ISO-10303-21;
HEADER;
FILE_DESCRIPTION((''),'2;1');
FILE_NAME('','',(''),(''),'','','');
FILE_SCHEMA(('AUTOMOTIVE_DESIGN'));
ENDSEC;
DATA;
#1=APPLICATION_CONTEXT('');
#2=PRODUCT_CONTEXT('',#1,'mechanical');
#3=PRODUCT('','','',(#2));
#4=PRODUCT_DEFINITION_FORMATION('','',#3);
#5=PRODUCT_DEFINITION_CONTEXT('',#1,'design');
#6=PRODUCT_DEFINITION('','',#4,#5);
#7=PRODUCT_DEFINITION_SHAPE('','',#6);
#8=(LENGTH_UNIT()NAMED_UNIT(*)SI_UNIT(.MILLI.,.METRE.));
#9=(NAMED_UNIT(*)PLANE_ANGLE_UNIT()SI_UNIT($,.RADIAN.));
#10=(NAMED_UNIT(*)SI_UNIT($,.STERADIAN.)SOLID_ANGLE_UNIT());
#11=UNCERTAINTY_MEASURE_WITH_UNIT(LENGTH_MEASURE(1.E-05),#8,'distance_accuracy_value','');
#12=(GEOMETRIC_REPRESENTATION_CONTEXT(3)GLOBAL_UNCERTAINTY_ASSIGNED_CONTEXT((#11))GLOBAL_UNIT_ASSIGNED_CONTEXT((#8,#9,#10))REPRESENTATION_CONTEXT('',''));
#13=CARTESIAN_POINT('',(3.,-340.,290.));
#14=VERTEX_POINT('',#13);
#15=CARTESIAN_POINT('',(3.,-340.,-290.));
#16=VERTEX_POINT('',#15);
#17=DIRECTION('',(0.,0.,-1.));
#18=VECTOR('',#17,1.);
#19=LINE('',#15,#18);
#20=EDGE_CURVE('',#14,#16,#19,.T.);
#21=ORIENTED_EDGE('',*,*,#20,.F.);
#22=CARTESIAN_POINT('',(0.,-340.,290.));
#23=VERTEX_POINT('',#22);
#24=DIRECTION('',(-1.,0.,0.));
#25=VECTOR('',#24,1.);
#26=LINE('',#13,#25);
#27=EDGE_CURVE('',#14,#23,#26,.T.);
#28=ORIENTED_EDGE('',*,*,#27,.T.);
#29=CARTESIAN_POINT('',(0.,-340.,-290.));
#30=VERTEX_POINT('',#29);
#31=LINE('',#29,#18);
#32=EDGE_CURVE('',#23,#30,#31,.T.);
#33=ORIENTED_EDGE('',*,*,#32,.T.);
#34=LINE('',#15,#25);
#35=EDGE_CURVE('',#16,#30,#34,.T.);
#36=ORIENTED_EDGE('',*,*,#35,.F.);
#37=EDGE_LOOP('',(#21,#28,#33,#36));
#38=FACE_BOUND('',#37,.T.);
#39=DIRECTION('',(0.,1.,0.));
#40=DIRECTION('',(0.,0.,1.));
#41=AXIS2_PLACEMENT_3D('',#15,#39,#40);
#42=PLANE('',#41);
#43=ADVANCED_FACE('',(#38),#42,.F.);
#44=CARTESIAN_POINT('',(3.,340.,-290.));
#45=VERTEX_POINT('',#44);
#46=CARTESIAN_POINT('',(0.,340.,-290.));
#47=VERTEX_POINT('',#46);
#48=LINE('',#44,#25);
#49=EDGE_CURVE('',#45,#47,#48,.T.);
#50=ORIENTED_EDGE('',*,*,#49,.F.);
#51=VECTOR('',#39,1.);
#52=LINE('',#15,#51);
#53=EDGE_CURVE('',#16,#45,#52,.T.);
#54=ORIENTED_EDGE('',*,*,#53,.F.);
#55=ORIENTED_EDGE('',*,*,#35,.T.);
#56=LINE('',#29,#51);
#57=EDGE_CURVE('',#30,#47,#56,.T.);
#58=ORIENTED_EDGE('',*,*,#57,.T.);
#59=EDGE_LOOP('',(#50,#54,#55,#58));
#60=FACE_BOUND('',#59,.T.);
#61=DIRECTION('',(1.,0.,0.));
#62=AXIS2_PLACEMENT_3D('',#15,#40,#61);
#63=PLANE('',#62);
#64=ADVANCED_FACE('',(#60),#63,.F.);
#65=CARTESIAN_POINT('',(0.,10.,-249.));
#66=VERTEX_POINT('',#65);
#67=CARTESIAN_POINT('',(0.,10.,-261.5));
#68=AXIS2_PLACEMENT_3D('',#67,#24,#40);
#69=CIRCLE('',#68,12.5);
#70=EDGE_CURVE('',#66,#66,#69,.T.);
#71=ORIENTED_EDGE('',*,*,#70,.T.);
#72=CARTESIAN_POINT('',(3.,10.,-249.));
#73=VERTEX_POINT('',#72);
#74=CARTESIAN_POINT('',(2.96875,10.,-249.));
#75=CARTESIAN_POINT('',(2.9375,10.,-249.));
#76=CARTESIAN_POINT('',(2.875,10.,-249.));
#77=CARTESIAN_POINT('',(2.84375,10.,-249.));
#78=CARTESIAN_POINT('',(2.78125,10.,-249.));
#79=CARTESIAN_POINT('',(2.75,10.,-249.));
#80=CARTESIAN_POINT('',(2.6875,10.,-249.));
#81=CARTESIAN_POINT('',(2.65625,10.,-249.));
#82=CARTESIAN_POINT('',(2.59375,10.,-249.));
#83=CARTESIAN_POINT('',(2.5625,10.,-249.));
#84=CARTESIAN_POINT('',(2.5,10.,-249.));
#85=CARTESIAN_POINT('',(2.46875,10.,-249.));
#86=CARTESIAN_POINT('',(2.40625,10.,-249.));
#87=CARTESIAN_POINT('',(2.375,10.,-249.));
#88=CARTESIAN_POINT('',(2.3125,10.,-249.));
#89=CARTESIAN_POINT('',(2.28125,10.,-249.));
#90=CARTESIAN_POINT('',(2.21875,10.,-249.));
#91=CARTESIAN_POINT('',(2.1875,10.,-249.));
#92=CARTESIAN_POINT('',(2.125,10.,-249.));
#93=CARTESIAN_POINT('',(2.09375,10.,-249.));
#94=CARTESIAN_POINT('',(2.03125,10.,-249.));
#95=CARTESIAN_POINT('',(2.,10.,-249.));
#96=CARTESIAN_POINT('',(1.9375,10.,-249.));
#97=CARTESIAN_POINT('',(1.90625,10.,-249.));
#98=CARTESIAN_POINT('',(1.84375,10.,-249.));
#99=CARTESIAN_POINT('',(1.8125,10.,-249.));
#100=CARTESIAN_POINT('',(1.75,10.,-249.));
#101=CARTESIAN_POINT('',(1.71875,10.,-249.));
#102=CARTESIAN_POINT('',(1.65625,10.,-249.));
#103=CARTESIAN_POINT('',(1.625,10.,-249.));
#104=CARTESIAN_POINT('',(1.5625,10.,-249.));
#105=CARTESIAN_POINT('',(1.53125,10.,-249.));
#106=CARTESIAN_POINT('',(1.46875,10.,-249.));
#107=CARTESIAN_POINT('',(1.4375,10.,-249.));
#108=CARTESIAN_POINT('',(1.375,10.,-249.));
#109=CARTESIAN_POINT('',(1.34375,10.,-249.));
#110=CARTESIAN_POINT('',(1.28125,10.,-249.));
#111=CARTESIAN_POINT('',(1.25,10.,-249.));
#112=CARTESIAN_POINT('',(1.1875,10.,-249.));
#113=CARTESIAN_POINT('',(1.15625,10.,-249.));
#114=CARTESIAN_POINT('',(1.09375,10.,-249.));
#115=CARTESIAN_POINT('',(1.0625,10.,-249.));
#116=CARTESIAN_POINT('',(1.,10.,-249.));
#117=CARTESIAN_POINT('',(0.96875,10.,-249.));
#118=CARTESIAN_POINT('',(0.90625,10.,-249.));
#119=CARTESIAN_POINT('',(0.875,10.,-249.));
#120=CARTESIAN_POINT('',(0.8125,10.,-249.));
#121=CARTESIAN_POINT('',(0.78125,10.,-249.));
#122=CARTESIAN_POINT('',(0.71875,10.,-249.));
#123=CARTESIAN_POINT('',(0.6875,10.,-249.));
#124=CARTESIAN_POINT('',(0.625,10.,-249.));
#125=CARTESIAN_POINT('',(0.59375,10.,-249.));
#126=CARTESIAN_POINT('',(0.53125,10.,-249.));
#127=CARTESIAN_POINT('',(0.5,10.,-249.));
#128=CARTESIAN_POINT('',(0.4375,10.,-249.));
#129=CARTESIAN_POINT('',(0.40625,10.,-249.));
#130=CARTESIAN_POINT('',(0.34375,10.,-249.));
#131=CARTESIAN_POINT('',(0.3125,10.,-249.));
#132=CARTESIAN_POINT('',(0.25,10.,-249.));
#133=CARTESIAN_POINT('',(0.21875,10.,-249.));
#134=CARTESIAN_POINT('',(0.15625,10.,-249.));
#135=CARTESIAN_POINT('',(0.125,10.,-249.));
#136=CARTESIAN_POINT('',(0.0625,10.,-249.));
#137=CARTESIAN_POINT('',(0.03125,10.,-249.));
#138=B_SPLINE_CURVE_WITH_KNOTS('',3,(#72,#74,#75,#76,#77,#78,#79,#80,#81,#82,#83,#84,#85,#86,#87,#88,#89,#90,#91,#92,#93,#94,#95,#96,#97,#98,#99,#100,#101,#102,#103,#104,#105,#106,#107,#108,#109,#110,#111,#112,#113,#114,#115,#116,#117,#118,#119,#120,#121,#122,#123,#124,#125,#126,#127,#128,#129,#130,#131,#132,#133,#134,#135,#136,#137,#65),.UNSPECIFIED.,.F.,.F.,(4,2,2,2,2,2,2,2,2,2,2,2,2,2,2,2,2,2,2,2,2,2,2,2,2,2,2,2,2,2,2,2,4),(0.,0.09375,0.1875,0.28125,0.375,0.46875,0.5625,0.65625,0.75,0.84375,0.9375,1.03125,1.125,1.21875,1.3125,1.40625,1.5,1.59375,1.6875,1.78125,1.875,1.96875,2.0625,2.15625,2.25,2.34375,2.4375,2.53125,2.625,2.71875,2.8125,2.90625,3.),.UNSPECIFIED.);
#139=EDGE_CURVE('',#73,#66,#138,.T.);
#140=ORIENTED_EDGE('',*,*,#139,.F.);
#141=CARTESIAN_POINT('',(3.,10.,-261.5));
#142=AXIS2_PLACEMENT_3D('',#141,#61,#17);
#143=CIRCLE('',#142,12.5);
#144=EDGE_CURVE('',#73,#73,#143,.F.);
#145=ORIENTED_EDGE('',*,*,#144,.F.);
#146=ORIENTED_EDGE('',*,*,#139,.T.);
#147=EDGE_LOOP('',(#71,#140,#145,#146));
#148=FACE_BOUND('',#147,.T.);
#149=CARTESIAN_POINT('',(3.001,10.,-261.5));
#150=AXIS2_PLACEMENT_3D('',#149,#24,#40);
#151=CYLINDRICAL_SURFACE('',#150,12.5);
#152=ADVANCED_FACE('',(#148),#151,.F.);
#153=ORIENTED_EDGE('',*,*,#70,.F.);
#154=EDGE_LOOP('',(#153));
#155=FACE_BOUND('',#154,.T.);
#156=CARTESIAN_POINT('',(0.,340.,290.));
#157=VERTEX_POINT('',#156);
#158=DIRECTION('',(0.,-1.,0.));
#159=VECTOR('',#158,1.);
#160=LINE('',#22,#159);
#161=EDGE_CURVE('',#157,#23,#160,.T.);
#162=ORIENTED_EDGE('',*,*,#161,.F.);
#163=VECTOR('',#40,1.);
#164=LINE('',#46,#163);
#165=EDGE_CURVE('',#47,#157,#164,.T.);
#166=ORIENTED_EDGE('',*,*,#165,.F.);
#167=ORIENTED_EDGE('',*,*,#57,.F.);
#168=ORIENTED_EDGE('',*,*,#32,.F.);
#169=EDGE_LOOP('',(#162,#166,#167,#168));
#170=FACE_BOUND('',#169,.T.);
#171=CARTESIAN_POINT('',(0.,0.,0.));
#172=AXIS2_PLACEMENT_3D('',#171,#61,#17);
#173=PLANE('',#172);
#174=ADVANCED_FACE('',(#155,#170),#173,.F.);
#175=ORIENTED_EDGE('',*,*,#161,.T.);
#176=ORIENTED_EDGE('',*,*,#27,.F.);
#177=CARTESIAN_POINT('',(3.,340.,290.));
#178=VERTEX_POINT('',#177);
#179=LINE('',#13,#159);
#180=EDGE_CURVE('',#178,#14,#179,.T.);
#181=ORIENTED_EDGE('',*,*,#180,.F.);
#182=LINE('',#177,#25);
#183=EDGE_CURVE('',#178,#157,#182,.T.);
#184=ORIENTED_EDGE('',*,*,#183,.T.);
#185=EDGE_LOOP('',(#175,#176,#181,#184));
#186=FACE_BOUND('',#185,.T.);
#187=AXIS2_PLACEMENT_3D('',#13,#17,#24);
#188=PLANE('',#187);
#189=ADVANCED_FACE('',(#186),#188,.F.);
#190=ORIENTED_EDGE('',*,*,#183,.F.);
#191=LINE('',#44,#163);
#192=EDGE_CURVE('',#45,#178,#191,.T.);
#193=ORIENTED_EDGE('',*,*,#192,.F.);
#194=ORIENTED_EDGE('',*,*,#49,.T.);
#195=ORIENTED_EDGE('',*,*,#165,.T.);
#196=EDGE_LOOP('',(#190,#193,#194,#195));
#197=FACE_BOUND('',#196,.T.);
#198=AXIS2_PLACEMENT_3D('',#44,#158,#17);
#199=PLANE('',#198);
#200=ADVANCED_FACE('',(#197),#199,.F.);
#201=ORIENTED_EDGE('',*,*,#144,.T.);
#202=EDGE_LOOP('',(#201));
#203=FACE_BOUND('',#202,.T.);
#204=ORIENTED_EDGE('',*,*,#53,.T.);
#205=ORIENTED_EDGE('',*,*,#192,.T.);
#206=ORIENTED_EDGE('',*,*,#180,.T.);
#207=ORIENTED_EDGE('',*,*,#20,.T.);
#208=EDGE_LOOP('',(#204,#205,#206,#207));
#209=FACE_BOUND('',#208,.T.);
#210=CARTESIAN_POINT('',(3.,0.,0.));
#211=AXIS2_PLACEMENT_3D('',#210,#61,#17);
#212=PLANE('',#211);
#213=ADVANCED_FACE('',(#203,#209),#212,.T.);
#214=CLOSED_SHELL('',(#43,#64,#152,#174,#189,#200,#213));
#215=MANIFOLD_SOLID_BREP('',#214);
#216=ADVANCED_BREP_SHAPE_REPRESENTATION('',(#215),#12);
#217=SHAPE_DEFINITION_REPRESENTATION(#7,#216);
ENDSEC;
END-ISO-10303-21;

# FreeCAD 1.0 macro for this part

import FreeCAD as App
import Part
import Sketcher

V = App.Vector
Q = App.Units.Quantity


def add_polygon(sketch, points):
    """Adds a closed chain of lines whose ends are joined by coincident constraints."""
    first, n = sketch.GeometryCount, len(points)
    for a, b in zip(points, points[1:] + points[:1]):
        sketch.addGeometry(Part.LineSegment(App.Vector(*a, 0), App.Vector(*b, 0)), False)
    for i in range(n):
        sketch.addConstraint(Sketcher.Constraint("Coincident", first + i, 2, first + (i + 1) % n, 1))

doc = App.newDocument("Part")
body = doc.addObject("PartDesign::Body", "Body")

sketch1 = body.newObject("Sketcher::SketchObject", "Sketch")
sketch1.AttachmentSupport = (doc.getObject("YZ_Plane"), [""])
sketch1.MapMode = "FlatFace"
add_polygon(sketch1, [(340, 290), (-340, 290), (-340, -290), (340, -290)])
sketch1.addConstraint([
    Sketcher.Constraint("Horizontal", 0),
    Sketcher.Constraint("Vertical", 1),
    Sketcher.Constraint("Horizontal", 2),
    Sketcher.Constraint("Vertical", 3),
    Sketcher.Constraint("Symmetric", 0, 2, 2, 2, -1, 1),
    Sketcher.Constraint("DistanceX", 0, 2, 0, 1, Q("680 mm")),
    Sketcher.Constraint("DistanceY", 1, 2, 1, 1, Q("580 mm")),
])
pad1 = body.newObject("PartDesign::Pad", "Pad")
pad1.Profile = sketch1
pad1.Length = 3

sketch2 = body.newObject("Sketcher::SketchObject", "Sketch001")
sketch2.AttachmentSupport = (doc.getObject("YZ_Plane"), [""])
sketch2.MapMode = "FlatFace"
sketch2.addGeometry(Part.Circle(V(10, -262, 0), V(0, 0, 1), 12), False)
sketch2.addConstraint([
    Sketcher.Constraint("Diameter", 0, Q("25 mm")),
    Sketcher.Constraint("DistanceX", -1, 1, 0, 3, Q("10 mm")),
    Sketcher.Constraint("DistanceY", 0, 3, -1, 1, Q("261.5 mm")),
])
pocket1 = body.newObject("PartDesign::Pocket", "Pocket")
pocket1.Profile = sketch2
pocket1.Type = "UpToFirst"
pocket1.Reversed = True

doc.recompute()
